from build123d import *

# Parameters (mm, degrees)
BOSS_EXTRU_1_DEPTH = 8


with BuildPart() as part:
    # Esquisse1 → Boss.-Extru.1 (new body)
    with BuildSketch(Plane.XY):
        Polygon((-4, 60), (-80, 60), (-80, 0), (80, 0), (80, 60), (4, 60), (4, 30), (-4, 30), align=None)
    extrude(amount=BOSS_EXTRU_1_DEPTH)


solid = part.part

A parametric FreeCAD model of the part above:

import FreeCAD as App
import Part
import Sketcher
from FreeCAD import Vector


def add_polygon(sketch, points):
    """Adds a closed chain of lines whose ends are joined by coincident constraints."""
    first, n = sketch.GeometryCount, len(points)
    for a, b in zip(points, points[1:] + points[:1]):
        sketch.addGeometry(Part.LineSegment(App.Vector(*a, 0), App.Vector(*b, 0)), False)
    for i in range(n):
        sketch.addConstraint(Sketcher.Constraint("Coincident", first + i, 2, first + (i + 1) % n, 1))

doc = App.newDocument("Part")
body = doc.addObject("PartDesign::Body", "Body")

# Sketch on XY plane
sketch1 = doc.addObject("Sketcher::SketchObject", "Sketch")
body.addObject(sketch1)
sketch1.AttachmentSupport = (doc.XY_Plane, [""])
sketch1.MapMode = "FlatFace"
add_polygon(sketch1, [(-4, 60), (-80, 60), (-80, 0), (80, 0), (80, 60), (4, 60), (4, 30), (-4, 30)])  # lines 0-7
sketch1.addConstraint([
    Sketcher.Constraint("Horizontal", 0),
    Sketcher.Constraint("Vertical", 1),
    Sketcher.Constraint("Horizontal", 2),
    Sketcher.Constraint("Vertical", 3),
    Sketcher.Constraint("Horizontal", 4),
    Sketcher.Constraint("Vertical", 5),
    Sketcher.Constraint("Horizontal", 6),
    Sketcher.Constraint("Vertical", 7),
    Sketcher.Constraint("Symmetric", 1, 2, 2, 2, -1, 1),
    Sketcher.Constraint("Symmetric", 4, 2, 7, 2, -2),
    Sketcher.Constraint("DistanceX", 0, 2, 0, 1, 76.0),
    Sketcher.Constraint("DistanceX", 2, 1, 2, 2, 160.0),
    Sketcher.Constraint("DistanceY", 1, 2, 1, 1, 60.0),
    Sketcher.Constraint("DistanceY", 5, 2, 5, 1, 30.0),
])
pad1 = doc.addObject("PartDesign::Pad", "Pad")
body.addObject(pad1)
pad1.Profile = sketch1
pad1.Length = 8

doc.recompute()
